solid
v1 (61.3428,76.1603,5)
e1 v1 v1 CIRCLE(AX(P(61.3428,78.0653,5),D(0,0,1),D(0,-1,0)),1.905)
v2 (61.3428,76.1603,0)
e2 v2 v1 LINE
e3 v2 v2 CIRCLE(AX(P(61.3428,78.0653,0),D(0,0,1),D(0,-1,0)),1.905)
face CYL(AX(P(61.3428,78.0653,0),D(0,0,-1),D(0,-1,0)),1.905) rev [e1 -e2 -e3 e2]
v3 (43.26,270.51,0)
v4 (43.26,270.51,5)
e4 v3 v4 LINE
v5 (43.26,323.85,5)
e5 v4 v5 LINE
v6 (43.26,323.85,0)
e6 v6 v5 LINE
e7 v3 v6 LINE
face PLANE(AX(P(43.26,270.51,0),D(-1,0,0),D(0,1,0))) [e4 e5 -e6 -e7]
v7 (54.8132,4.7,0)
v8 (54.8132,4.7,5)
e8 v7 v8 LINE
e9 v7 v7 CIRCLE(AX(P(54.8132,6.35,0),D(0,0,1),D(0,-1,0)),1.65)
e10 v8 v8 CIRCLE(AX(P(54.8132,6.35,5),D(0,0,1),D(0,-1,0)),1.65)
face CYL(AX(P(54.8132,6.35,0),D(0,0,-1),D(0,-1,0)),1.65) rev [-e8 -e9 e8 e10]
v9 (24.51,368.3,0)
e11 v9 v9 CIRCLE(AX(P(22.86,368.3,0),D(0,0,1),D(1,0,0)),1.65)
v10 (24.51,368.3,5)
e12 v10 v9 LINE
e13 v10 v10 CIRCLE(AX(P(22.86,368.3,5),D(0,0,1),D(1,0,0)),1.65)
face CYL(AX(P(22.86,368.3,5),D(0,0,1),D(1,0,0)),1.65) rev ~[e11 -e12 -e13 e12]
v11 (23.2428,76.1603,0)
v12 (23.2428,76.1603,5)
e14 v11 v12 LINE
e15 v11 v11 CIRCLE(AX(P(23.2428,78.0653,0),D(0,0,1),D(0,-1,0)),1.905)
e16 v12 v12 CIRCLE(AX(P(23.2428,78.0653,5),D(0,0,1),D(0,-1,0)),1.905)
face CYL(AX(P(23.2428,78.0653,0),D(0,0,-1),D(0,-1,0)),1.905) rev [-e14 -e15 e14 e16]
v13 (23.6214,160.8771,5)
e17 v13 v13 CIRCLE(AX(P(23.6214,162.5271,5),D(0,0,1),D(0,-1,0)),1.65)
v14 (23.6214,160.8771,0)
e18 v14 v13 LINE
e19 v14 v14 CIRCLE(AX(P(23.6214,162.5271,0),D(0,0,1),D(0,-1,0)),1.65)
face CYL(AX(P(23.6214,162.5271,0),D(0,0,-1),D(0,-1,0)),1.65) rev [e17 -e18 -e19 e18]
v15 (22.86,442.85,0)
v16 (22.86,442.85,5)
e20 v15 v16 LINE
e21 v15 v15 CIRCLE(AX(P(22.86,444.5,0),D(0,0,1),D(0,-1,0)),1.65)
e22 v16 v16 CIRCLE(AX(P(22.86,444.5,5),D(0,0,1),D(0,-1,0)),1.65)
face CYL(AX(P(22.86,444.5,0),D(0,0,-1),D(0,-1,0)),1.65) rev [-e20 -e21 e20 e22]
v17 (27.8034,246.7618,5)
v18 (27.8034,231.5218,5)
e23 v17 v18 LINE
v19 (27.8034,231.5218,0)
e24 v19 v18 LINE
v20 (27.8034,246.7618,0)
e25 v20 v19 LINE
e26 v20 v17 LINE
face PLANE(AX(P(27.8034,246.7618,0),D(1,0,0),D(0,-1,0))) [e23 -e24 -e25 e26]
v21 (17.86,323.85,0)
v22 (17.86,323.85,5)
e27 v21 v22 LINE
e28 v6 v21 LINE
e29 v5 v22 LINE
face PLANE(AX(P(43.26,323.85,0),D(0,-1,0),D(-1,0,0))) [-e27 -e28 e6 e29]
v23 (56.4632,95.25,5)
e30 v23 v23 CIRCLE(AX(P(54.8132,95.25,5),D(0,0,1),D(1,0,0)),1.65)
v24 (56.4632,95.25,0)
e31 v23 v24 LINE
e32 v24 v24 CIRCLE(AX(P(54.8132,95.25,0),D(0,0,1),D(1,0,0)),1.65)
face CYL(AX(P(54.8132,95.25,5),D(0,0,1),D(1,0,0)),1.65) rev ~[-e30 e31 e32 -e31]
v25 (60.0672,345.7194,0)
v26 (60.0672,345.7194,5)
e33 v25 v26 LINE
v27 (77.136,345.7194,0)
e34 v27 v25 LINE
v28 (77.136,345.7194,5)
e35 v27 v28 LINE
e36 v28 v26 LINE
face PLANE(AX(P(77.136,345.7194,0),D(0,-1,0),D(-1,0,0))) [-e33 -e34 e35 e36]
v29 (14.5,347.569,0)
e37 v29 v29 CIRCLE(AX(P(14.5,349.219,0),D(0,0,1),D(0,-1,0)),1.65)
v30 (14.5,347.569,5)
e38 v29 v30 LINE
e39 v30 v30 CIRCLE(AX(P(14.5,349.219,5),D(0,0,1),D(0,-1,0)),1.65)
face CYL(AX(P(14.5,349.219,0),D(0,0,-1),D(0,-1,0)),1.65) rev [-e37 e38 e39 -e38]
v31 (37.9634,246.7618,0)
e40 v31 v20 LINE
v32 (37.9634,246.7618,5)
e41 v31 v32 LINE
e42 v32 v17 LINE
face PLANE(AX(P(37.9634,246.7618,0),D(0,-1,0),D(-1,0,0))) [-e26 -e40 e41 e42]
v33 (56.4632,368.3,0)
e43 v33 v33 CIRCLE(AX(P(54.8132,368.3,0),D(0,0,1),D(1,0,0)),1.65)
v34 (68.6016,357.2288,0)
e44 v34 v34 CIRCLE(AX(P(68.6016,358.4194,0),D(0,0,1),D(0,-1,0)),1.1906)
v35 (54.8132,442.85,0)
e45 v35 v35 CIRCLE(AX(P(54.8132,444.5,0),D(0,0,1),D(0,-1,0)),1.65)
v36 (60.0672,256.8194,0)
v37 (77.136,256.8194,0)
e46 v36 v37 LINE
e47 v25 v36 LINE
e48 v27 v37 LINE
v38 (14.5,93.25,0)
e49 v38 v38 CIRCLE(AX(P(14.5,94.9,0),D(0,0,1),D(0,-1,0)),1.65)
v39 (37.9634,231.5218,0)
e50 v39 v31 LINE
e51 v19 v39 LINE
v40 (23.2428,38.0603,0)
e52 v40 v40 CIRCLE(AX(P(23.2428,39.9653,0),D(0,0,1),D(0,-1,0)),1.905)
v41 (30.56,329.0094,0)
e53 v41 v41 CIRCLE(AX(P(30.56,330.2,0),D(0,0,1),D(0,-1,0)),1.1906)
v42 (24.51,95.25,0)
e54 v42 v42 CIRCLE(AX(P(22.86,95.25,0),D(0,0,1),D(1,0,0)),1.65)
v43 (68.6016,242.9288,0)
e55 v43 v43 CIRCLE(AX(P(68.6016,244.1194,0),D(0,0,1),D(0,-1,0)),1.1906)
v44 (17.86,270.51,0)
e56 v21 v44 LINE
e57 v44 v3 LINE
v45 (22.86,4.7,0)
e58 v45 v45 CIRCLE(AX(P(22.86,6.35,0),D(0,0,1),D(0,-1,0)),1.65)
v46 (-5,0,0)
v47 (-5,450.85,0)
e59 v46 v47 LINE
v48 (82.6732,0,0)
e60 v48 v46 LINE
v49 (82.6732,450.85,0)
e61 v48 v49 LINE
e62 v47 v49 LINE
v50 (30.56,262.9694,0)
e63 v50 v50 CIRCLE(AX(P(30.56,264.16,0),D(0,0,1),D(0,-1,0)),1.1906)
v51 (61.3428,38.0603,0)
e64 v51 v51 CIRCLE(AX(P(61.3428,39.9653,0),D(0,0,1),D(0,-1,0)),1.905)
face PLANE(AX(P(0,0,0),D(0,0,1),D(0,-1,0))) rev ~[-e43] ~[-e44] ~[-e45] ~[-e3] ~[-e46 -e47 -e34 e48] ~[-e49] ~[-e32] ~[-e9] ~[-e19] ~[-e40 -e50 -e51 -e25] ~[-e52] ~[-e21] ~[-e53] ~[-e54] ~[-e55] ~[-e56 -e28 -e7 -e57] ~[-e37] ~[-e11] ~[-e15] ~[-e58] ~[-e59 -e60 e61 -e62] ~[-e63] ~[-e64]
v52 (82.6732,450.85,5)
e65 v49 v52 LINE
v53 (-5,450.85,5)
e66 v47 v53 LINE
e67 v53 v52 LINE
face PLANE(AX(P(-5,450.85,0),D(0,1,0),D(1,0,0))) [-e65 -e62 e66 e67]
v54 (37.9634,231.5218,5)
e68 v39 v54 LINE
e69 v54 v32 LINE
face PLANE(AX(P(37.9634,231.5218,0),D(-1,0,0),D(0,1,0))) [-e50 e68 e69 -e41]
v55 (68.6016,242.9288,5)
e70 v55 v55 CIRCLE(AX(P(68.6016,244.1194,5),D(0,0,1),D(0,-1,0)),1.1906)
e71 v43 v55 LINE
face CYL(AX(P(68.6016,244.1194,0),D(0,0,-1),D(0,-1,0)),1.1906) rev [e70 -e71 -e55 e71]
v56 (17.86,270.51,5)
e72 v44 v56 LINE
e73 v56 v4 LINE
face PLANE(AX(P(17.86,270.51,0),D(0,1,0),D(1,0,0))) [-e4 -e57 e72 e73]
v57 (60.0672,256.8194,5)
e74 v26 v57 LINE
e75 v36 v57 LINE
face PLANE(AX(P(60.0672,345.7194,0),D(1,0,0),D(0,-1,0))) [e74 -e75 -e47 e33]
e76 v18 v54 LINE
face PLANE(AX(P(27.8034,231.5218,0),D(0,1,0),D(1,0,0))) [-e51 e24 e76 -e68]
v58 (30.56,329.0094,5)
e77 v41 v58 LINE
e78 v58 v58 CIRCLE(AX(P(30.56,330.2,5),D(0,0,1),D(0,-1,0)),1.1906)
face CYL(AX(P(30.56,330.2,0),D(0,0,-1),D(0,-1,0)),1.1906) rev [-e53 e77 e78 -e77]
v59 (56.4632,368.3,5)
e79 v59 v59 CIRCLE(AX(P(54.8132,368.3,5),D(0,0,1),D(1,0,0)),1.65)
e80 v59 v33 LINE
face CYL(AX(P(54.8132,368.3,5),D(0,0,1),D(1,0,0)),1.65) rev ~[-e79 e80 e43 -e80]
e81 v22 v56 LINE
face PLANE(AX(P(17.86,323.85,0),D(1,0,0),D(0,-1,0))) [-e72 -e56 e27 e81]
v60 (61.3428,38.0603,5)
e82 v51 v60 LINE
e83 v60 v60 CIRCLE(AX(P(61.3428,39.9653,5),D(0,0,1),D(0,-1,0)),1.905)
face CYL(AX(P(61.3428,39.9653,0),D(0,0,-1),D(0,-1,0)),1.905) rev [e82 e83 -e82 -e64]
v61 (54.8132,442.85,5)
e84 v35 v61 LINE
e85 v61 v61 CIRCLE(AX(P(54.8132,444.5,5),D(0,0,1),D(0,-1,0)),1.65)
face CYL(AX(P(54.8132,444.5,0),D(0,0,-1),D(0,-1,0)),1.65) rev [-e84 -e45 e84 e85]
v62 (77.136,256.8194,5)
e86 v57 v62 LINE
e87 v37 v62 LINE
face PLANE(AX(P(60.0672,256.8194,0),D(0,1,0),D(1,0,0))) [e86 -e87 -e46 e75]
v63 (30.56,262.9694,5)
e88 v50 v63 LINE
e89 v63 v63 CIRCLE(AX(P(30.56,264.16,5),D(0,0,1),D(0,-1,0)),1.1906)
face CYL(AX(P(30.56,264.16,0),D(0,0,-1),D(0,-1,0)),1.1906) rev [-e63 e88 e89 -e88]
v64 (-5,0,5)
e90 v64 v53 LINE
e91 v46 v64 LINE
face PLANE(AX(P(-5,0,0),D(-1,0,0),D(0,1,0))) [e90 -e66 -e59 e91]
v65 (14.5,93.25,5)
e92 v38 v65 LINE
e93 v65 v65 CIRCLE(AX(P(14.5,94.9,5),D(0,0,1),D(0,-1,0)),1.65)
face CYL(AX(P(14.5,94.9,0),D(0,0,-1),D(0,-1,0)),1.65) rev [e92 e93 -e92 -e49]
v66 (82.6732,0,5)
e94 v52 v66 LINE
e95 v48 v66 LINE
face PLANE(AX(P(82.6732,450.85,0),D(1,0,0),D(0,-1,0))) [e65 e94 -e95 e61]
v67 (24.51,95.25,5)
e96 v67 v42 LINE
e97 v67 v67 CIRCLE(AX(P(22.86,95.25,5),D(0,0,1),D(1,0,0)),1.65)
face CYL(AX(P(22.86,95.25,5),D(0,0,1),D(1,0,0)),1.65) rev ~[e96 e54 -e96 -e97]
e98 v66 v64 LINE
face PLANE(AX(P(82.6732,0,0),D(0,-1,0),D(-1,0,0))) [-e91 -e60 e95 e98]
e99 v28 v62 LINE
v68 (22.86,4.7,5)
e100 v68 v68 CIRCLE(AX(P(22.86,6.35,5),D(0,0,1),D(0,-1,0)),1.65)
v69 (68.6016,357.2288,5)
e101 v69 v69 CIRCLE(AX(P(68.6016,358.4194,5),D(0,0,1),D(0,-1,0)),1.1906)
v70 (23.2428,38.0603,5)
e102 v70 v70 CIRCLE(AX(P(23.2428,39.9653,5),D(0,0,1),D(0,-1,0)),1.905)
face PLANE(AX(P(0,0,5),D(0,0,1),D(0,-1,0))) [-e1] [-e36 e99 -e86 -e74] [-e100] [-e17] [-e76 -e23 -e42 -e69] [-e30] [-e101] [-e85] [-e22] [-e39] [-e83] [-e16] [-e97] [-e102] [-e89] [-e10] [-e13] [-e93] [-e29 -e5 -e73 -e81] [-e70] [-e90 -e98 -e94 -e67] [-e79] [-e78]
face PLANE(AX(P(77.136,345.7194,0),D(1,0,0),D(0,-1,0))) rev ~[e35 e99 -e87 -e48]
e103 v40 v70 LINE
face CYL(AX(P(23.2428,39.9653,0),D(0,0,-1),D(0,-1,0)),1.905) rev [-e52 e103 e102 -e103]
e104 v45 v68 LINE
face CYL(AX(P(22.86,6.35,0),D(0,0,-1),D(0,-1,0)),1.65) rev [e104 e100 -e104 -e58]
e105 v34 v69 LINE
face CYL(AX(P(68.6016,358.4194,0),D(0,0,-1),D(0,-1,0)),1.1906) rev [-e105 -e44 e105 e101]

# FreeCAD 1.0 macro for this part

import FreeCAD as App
import Part
import Sketcher
Q = App.Units.Quantity

doc = App.newDocument("Part")
body = doc.addObject("PartDesign::Body", "Body")

# Sketch on XY plane
sketch1 = body.newObject("Sketcher::SketchObject", "Sketch")
sketch1.AttachmentSupport = (doc.getObject("XY_Plane"), [""])
sketch1.MapMode = "FlatFace"
sketch1.addGeometry(Part.LineSegment(App.Vector(82.6732, 450.85, 0), App.Vector(-5, 450.85, 0)), False)
sketch1.addGeometry(Part.LineSegment(App.Vector(-5, 450.85, 0), App.Vector(-5, 0, 0)), False)
sketch1.addGeometry(Part.LineSegment(App.Vector(-5, 0, 0), App.Vector(82.6732, 0, 0)), False)
sketch1.addGeometry(Part.LineSegment(App.Vector(82.6732, 0, 0), App.Vector(82.6732, 450.85, 0)), False)
sketch1.addGeometry(Part.Circle(App.Vector(22.86, 444.5, 0), App.Vector(0, 0, 1), 1.65), False)
sketch1.addGeometry(Part.Circle(App.Vector(14.5, 349.219, 0), App.Vector(0, 0, 1), 1.65), False)
sketch1.addGeometry(Part.Circle(App.Vector(30.56, 330.2, 0), App.Vector(0, 0, 1), 1.1906), False)
sketch1.addGeometry(Part.LineSegment(App.Vector(17.86, 270.51, 0), App.Vector(17.86, 323.85, 0)), False)
sketch1.addGeometry(Part.LineSegment(App.Vector(17.86, 323.85, 0), App.Vector(43.26, 323.85, 0)), False)
sketch1.addGeometry(Part.LineSegment(App.Vector(43.26, 323.85, 0), App.Vector(43.26, 270.51, 0)), False)
sketch1.addGeometry(Part.LineSegment(App.Vector(43.26, 270.51, 0), App.Vector(17.86, 270.51, 0)), False)
sketch1.addGeometry(Part.Circle(App.Vector(30.56, 264.16, 0), App.Vector(0, 0, 1), 1.1906), False)
sketch1.addGeometry(Part.Circle(App.Vector(54.8132, 444.5, 0), App.Vector(0, 0, 1), 1.65), False)
sketch1.addGeometry(Part.Circle(App.Vector(68.6016, 358.4194, 0), App.Vector(0, 0, 1), 1.1906), False)
sketch1.addGeometry(Part.LineSegment(App.Vector(27.8034, 231.5218, 0), App.Vector(27.8034, 246.7618, 0)), False)
sketch1.addGeometry(Part.LineSegment(App.Vector(27.8034, 246.7618, 0), App.Vector(37.9634, 246.7618, 0)), False)
sketch1.addGeometry(Part.LineSegment(App.Vector(37.9634, 246.7618, 0), App.Vector(37.9634, 231.5218, 0)), False)
sketch1.addGeometry(Part.LineSegment(App.Vector(37.9634, 231.5218, 0), App.Vector(27.8034, 231.5218, 0)), False)
sketch1.addGeometry(Part.LineSegment(App.Vector(60.0672, 345.7194, 0), App.Vector(77.136, 345.7194, 0)), False)
sketch1.addGeometry(Part.LineSegment(App.Vector(77.136, 345.7194, 0), App.Vector(77.136, 256.8194, 0)), False)
sketch1.addGeometry(Part.LineSegment(App.Vector(77.136, 256.8194, 0), App.Vector(60.0672, 256.8194, 0)), False)
sketch1.addGeometry(Part.LineSegment(App.Vector(60.0672, 256.8194, 0), App.Vector(60.0672, 345.7194, 0)), False)
sketch1.addGeometry(Part.Circle(App.Vector(68.6016, 244.1194, 0), App.Vector(0, 0, 1), 1.1906), False)
sketch1.addGeometry(Part.Circle(App.Vector(23.6214, 162.5271, 0), App.Vector(0, 0, 1), 1.65), False)
sketch1.addGeometry(Part.Circle(App.Vector(14.5, 94.9, 0), App.Vector(0, 0, 1), 1.65), False)
sketch1.addGeometry(Part.Circle(App.Vector(23.2428, 78.0653, 0), App.Vector(0, 0, 1), 1.905), False)
sketch1.addGeometry(Part.Circle(App.Vector(23.2428, 39.9653, 0), App.Vector(0, 0, 1), 1.905), False)
sketch1.addGeometry(Part.Circle(App.Vector(22.86, 6.35, 0), App.Vector(0, 0, 1), 1.65), False)
sketch1.addGeometry(Part.Circle(App.Vector(61.3428, 78.0653, 0), App.Vector(0, 0, 1), 1.905), False)
sketch1.addGeometry(Part.Circle(App.Vector(54.8132, 6.35, 0), App.Vector(0, 0, 1), 1.65), False)
sketch1.addGeometry(Part.Circle(App.Vector(61.3428, 39.9653, 0), App.Vector(0, 0, 1), 1.905), False)
sketch1.addConstraint(Sketcher.Constraint("Coincident", 0, 2, 1, 1))
sketch1.addConstraint(Sketcher.Constraint("Coincident", 1, 2, 2, 1))
sketch1.addConstraint(Sketcher.Constraint("Coincident", 2, 2, 3, 1))
sketch1.addConstraint(Sketcher.Constraint("Coincident", 3, 2, 0, 1))
sketch1.addConstraint(Sketcher.Constraint("Coincident", 7, 2, 8, 1))
sketch1.addConstraint(Sketcher.Constraint("Coincident", 8, 2, 9, 1))
sketch1.addConstraint(Sketcher.Constraint("Coincident", 9, 2, 10, 1))
sketch1.addConstraint(Sketcher.Constraint("Coincident", 10, 2, 7, 1))
sketch1.addConstraint(Sketcher.Constraint("Coincident", 14, 2, 15, 1))
sketch1.addConstraint(Sketcher.Constraint("Coincident", 15, 2, 16, 1))
sketch1.addConstraint(Sketcher.Constraint("Coincident", 16, 2, 17, 1))
sketch1.addConstraint(Sketcher.Constraint("Coincident", 17, 2, 14, 1))
sketch1.addConstraint(Sketcher.Constraint("Coincident", 18, 2, 19, 1))
sketch1.addConstraint(Sketcher.Constraint("Coincident", 19, 2, 20, 1))
sketch1.addConstraint(Sketcher.Constraint("Coincident", 20, 2, 21, 1))
sketch1.addConstraint(Sketcher.Constraint("Coincident", 21, 2, 18, 1))
sketch1.addConstraint(Sketcher.Constraint("Horizontal", 0))
sketch1.addConstraint(Sketcher.Constraint("Vertical", 1))
sketch1.addConstraint(Sketcher.Constraint("Horizontal", 2))
sketch1.addConstraint(Sketcher.Constraint("Vertical", 3))
sketch1.addConstraint(Sketcher.Constraint("Vertical", 7))
sketch1.addConstraint(Sketcher.Constraint("Horizontal", 8))
sketch1.addConstraint(Sketcher.Constraint("Vertical", 9))
sketch1.addConstraint(Sketcher.Constraint("Horizontal", 10))
sketch1.addConstraint(Sketcher.Constraint("Vertical", 14))
sketch1.addConstraint(Sketcher.Constraint("Horizontal", 15))
sketch1.addConstraint(Sketcher.Constraint("Vertical", 16))
sketch1.addConstraint(Sketcher.Constraint("Horizontal", 17))
sketch1.addConstraint(Sketcher.Constraint("Horizontal", 18))
sketch1.addConstraint(Sketcher.Constraint("Vertical", 19))
sketch1.addConstraint(Sketcher.Constraint("Horizontal", 20))
sketch1.addConstraint(Sketcher.Constraint("Vertical", 21))
sketch1.addConstraint(Sketcher.Constraint("Equal", 4, 5))
sketch1.addConstraint(Sketcher.Constraint("Equal", 6, 11))
sketch1.addConstraint(Sketcher.Constraint("Equal", 5, 12))
sketch1.addConstraint(Sketcher.Constraint("Equal", 11, 13))
sketch1.addConstraint(Sketcher.Constraint("Equal", 13, 22))
sketch1.addConstraint(Sketcher.Constraint("Equal", 12, 23))
sketch1.addConstraint(Sketcher.Constraint("Equal", 23, 24))
sketch1.addConstraint(Sketcher.Constraint("Equal", 25, 26))
sketch1.addConstraint(Sketcher.Constraint("Equal", 24, 27))
sketch1.addConstraint(Sketcher.Constraint("Equal", 26, 28))
sketch1.addConstraint(Sketcher.Constraint("Equal", 27, 29))
sketch1.addConstraint(Sketcher.Constraint("Equal", 28, 30))
sketch1.addConstraint(Sketcher.Constraint("PointOnObject", 1, 2, -1))
sketch1.addConstraint(Sketcher.Constraint("Horizontal", 4, 3, 12, 3))
sketch1.addConstraint(Sketcher.Constraint("Horizontal", 25, 3, 28, 3))
sketch1.addConstraint(Sketcher.Constraint("Horizontal", 27, 3, 29, 3))
sketch1.addConstraint(Sketcher.Constraint("Horizontal", 26, 3, 30, 3))
sketch1.addConstraint(Sketcher.Constraint("Vertical", 6, 3, 11, 3))
sketch1.addConstraint(Sketcher.Constraint("Vertical", 13, 3, 22, 3))
sketch1.addConstraint(Sketcher.Constraint("Vertical", 5, 3, 24, 3))
sketch1.addConstraint(Sketcher.Constraint("Vertical", 25, 3, 26, 3))
sketch1.addConstraint(Sketcher.Constraint("Vertical", 4, 3, 27, 3))
sketch1.addConstraint(Sketcher.Constraint("Vertical", 12, 3, 29, 3))
sketch1.addConstraint(Sketcher.Constraint("Vertical", 28, 3, 30, 3))
sketch1.addConstraint(Sketcher.Constraint("Diameter", 25, Q("0.15 in")))
sketch1.addConstraint(Sketcher.Constraint("DistanceX", 8, 1, 8, 2, Q("1 in")))
sketch1.addConstraint(Sketcher.Constraint("Diameter", 6, Q("0.093748 in")))
sketch1.addConstraint(Sketcher.Constraint("DistanceX", 15, 1, 15, 2, Q("0.4 in")))
sketch1.addConstraint(Sketcher.Constraint("DistanceY", 7, 1, 7, 2, Q("2.1 in")))
sketch1.addConstraint(Sketcher.Constraint("DistanceY", 14, 1, 14, 2, Q("0.6 in")))
sketch1.addConstraint(Sketcher.Constraint("DistanceX", -1, 1, 4, 3, Q("0.9 in")))
sketch1.addConstraint(Sketcher.Constraint("DistanceY", 26, 3, 25, 3, Q("1.5 in")))
sketch1.addConstraint(Sketcher.Constraint("DistanceX", 25, 3, 28, 3, Q("1.5 in")))
sketch1.addConstraint(Sketcher.Constraint("DistanceX", 7, 2, 6, 3, Q("0.5 in")))
sketch1.addConstraint(Sketcher.Constraint("DistanceY", 18, 2, 13, 3, Q("0.5 in")))
sketch1.addConstraint(Sketcher.Constraint("DistanceY", 22, 3, 19, 2, Q("0.5 in")))
sketch1.addConstraint(Sketcher.Constraint("Diameter", 4, 3.3))
sketch1.addConstraint(Sketcher.Constraint("DistanceX", 18, 1, 18, 2, Q("0.672 in")))
sketch1.addConstraint(Sketcher.Constraint("DistanceY", -1, 1, 27, 3, Q("0.25 in")))
sketch1.addConstraint(Sketcher.Constraint("DistanceY", 4, 3, 0, 2, Q("0.25 in")))
sketch1.addConstraint(Sketcher.Constraint("DistanceY", 7, 2, 6, 3, Q("0.25 in")))
sketch1.addConstraint(Sketcher.Constraint("DistanceY", 11, 3, 9, 2, Q("0.25 in")))
sketch1.addConstraint(Sketcher.Constraint("DistanceY", 19, 2, 19, 1, Q("3.5 in")))
sketch1.addConstraint(Sketcher.Constraint("DistanceY", -1, 1, 6, 3, Q("13 in")))
sketch1.addConstraint(Sketcher.Constraint("DistanceX", 13, 3, 18, 2, Q("0.336 in")))
sketch1.addConstraint(Sketcher.Constraint("DistanceY", 1, 2, 1, 1, Q("17.75 in")))
sketch1.addConstraint(Sketcher.Constraint("DistanceX", 0, 2, 6, 3, Q("1.4 in")))
sketch1.addConstraint(Sketcher.Constraint("DistanceX", 0, 2, 0, 1, Q("3.4517 in")))
sketch1.addConstraint(Sketcher.Constraint("DistanceX", -1, 1, 12, 3, Q("2.158 in")))
sketch1.addConstraint(Sketcher.Constraint("DistanceY", -1, 1, 13, 3, Q("14.111 in")))
sketch1.addConstraint(Sketcher.Constraint("DistanceX", 13, 3, 3, 2, Q("0.554 in")))
sketch1.addConstraint(Sketcher.Constraint("DistanceY", -1, 1, 23, 3, Q("6.3987 in")))
sketch1.addConstraint(Sketcher.Constraint("DistanceX", 5, 3, 23, 3, Q("0.3591 in")))
sketch1.addConstraint(Sketcher.Constraint("DistanceX", 24, 3, 25, 3, Q("0.3442 in")))
sketch1.addConstraint(Sketcher.Constraint("DistanceX", -1, 1, 5, 3, 14.5))
sketch1.addConstraint(Sketcher.Constraint("DistanceY", -1, 1, 5, 3, 349.219))
sketch1.addConstraint(Sketcher.Constraint("DistanceX", -1, 1, 6, 3, 30.56))
sketch1.addConstraint(Sketcher.Constraint("DistanceY", -1, 1, 24, 3, 94.9))
sketch1.addConstraint(Sketcher.Constraint("DistanceY", -1, 1, 25, 3, 78.0653))
sketch1.addConstraint(Sketcher.Constraint("DistanceX", -1, 1, 14, 2, 27.8034))
sketch1.addConstraint(Sketcher.Constraint("DistanceY", -1, 1, 14, 2, 246.7618))
pad1 = body.newObject("PartDesign::Pad", "Pad")
pad1.Profile = sketch1
pad1.Length = 5

# Sketch on XY plane
sketch2 = body.newObject("Sketcher::SketchObject", "Sketch001")
sketch2.AttachmentSupport = (doc.getObject("XY_Plane"), [""])
sketch2.MapMode = "FlatFace"
sketch2.AttachmentOffset = App.Placement(App.Vector(0, 0, 5), App.Rotation())
sketch2.addGeometry(Part.Circle(App.Vector(22.86, 95.25, 0), App.Vector(0, 0, 1), 1.65), False)
sketch2.addGeometry(Part.Circle(App.Vector(54.8132, 95.25, 0), App.Vector(0, 0, 1), 1.65), False)
sketch2.addGeometry(Part.Circle(App.Vector(22.86, 368.3, 0), App.Vector(0, 0, 1), 1.65), False)
sketch2.addGeometry(Part.Circle(App.Vector(54.8132, 368.3, 0), App.Vector(0, 0, 1), 1.65), False)
sketch2.addConstraint(Sketcher.Constraint("Equal", 0, 1))
sketch2.addConstraint(Sketcher.Constraint("Equal", 1, 2))
sketch2.addConstraint(Sketcher.Constraint("Equal", 2, 3))
sketch2.addConstraint(Sketcher.Constraint("Horizontal", 0, 3, 1, 3))
sketch2.addConstraint(Sketcher.Constraint("Horizontal", 2, 3, 3, 3))
sketch2.addConstraint(Sketcher.Constraint("Vertical", 0, 3, 2, 3))
sketch2.addConstraint(Sketcher.Constraint("Vertical", 1, 3, 3, 3))
sketch2.addConstraint(Sketcher.Constraint("Diameter", 0, 3.3))
sketch2.addConstraint(Sketcher.Constraint("DistanceX", -1, 1, 0, 3, Q("0.9 in")))
sketch2.addConstraint(Sketcher.Constraint("DistanceY", -1, 1, 2, 3, Q("14.5 in")))
sketch2.addConstraint(Sketcher.Constraint("DistanceY", -1, 1, 0, 3, Q("3.75 in")))
sketch2.addConstraint(Sketcher.Constraint("DistanceX", -1, 1, 1, 3, Q("2.158 in")))
pocket1 = body.newObject("PartDesign::Pocket", "Pocket")
pocket1.Profile = sketch2
pocket1.Length = 5

doc.recompute()
